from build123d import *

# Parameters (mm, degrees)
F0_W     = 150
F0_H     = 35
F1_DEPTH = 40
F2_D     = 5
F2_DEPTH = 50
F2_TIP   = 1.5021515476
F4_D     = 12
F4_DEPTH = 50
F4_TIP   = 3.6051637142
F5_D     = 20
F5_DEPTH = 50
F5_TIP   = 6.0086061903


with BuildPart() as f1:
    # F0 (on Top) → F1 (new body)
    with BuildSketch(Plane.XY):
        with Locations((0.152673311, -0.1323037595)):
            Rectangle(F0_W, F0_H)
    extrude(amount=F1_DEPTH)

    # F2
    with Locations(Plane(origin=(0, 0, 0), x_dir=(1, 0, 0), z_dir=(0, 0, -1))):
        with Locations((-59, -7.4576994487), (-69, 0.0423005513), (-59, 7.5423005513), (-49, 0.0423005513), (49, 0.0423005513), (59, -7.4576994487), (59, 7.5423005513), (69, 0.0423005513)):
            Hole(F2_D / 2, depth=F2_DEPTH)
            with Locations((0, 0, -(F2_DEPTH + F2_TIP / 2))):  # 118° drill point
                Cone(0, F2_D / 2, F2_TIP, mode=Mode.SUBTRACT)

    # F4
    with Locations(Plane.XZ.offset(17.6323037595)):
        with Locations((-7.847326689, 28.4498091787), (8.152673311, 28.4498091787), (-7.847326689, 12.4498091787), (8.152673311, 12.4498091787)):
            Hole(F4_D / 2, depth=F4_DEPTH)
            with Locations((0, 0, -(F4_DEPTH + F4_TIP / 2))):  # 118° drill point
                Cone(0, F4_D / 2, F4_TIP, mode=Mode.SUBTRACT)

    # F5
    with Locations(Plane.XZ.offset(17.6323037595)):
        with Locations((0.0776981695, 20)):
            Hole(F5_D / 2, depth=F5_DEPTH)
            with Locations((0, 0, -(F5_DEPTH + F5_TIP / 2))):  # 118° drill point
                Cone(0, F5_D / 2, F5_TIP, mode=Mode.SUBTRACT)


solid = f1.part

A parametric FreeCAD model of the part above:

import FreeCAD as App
import Part
import Sketcher


def add_polygon(sketch, points):
    """Adds a closed chain of lines whose ends are joined by coincident constraints."""
    first, n = sketch.GeometryCount, len(points)
    for a, b in zip(points, points[1:] + points[:1]):
        sketch.addGeometry(Part.LineSegment(App.Vector(*a, 0), App.Vector(*b, 0)), False)
    for i in range(n):
        sketch.addConstraint(Sketcher.Constraint("Coincident", first + i, 2, first + (i + 1) % n, 1))

doc = App.newDocument("Part")
body = doc.addObject("PartDesign::Body", "Body")

# Sketch on XY plane
sketch1 = doc.addObject("Sketcher::SketchObject", "Sketch")
body.addObject(sketch1)
sketch1.AttachmentSupport = (doc.XY_Plane, [""])
sketch1.MapMode = "FlatFace"
add_polygon(sketch1, [(-74.847327, 17.367696), (-74.847327, -17.632304), (75.152673, -17.632304), (75.152673, 17.367696)])  # lines 0-3
sketch1.addConstraint(Sketcher.Constraint("Vertical", 0))
sketch1.addConstraint(Sketcher.Constraint("Horizontal", 1))
sketch1.addConstraint(Sketcher.Constraint("Vertical", 2))
sketch1.addConstraint(Sketcher.Constraint("Horizontal", 3))
sketch1.addConstraint(Sketcher.Constraint("DistanceX", 1, 1, 1, 2, 150.0))
sketch1.addConstraint(Sketcher.Constraint("DistanceY", 0, 2, 0, 1, 35.0))
sketch1.addConstraint(Sketcher.Constraint("DistanceX", 0, 2, -1, 1, 74.847327))
sketch1.addConstraint(Sketcher.Constraint("DistanceY", 0, 2, -1, 1, 17.632304))
pad1 = doc.addObject("PartDesign::Pad", "Pad")
body.addObject(pad1)
pad1.Profile = sketch1
pad1.Length = 40

# Sketch on XY plane
sketch2 = doc.addObject("Sketcher::SketchObject", "Sketch001")
body.addObject(sketch2)
sketch2.AttachmentSupport = (doc.XY_Plane, [""])
sketch2.MapMode = "FlatFace"
sketch2.addGeometry(Part.Circle(App.Vector(-59, 7.457699, 0), App.Vector(0, 0, 1), 2.5), False)
sketch2.addGeometry(Part.Circle(App.Vector(-69, -0.042301, 0), App.Vector(0, 0, 1), 2.5), False)
sketch2.addGeometry(Part.Circle(App.Vector(-59, -7.542301, 0), App.Vector(0, 0, 1), 2.5), False)
sketch2.addGeometry(Part.Circle(App.Vector(-49, -0.042301, 0), App.Vector(0, 0, 1), 2.5), False)
sketch2.addGeometry(Part.Circle(App.Vector(49, -0.042301, 0), App.Vector(0, 0, 1), 2.5), False)
sketch2.addGeometry(Part.Circle(App.Vector(59, 7.457699, 0), App.Vector(0, 0, 1), 2.5), False)
sketch2.addGeometry(Part.Circle(App.Vector(59, -7.542301, 0), App.Vector(0, 0, 1), 2.5), False)
sketch2.addGeometry(Part.Circle(App.Vector(69, -0.042301, 0), App.Vector(0, 0, 1), 2.5), False)
sketch2.addConstraint(Sketcher.Constraint("Equal", 0, 1))
sketch2.addConstraint(Sketcher.Constraint("Equal", 1, 2))
sketch2.addConstraint(Sketcher.Constraint("Equal", 2, 3))
sketch2.addConstraint(Sketcher.Constraint("Equal", 3, 4))
sketch2.addConstraint(Sketcher.Constraint("Equal", 4, 5))
sketch2.addConstraint(Sketcher.Constraint("Equal", 5, 6))
sketch2.addConstraint(Sketcher.Constraint("Equal", 6, 7))
sketch2.addConstraint(Sketcher.Constraint("Symmetric", 3, 3, 4, 3, -2))
sketch2.addConstraint(Sketcher.Constraint("Symmetric", 0, 3, 5, 3, -2))
sketch2.addConstraint(Sketcher.Constraint("Symmetric", 2, 3, 6, 3, -2))
sketch2.addConstraint(Sketcher.Constraint("Symmetric", 1, 3, 7, 3, -2))
sketch2.addConstraint(Sketcher.Constraint("Horizontal", 1, 3, 3, 3))
sketch2.addConstraint(Sketcher.Constraint("Vertical", 0, 3, 2, 3))
sketch2.addConstraint(Sketcher.Constraint("Diameter", 0, 5.0))
sketch2.addConstraint(Sketcher.Constraint("DistanceX", 0, 3, -1, 1, 59.0))
sketch2.addConstraint(Sketcher.Constraint("DistanceX", 1, 3, -1, 1, 69.0))
sketch2.addConstraint(Sketcher.Constraint("DistanceX", 3, 3, -1, 1, 49.0))
sketch2.addConstraint(Sketcher.Constraint("DistanceY", 2, 3, 0, 3, 15.0))
sketch2.addConstraint(Sketcher.Constraint("DistanceY", 1, 3, 0, 3, 7.5))
sketch2.addConstraint(Sketcher.Constraint("DistanceY", -1, 1, 0, 3, 7.457699))
doc.recompute()
hole = doc.addObject("PartDesign::Hole", "Hole")
body.addObject(hole)
hole.Profile = sketch2
hole.ThreadType = "None"
hole.Diameter = 5
hole.DepthType = "Dimension"
hole.Depth = 50
hole.DrillPoint = "Angled"
hole.DrillPointAngle = 118
hole.Reversed = True

# Sketch on XZ plane
sketch3 = doc.addObject("Sketcher::SketchObject", "Sketch002")
body.addObject(sketch3)
sketch3.AttachmentSupport = (doc.XZ_Plane, [""])
sketch3.MapMode = "FlatFace"
sketch3.AttachmentOffset = App.Placement(App.Vector(0, 0, 17.632304), App.Rotation())
sketch3.addGeometry(Part.Circle(App.Vector(-7.847327, 28.449809, 0), App.Vector(0, 0, 1), 6), False)
sketch3.addGeometry(Part.Circle(App.Vector(8.152673, 28.449809, 0), App.Vector(0, 0, 1), 6), False)
sketch3.addGeometry(Part.Circle(App.Vector(-7.847327, 12.449809, 0), App.Vector(0, 0, 1), 6), False)
sketch3.addGeometry(Part.Circle(App.Vector(8.152673, 12.449809, 0), App.Vector(0, 0, 1), 6), False)
sketch3.addConstraint(Sketcher.Constraint("Equal", 0, 1))
sketch3.addConstraint(Sketcher.Constraint("Equal", 1, 2))
sketch3.addConstraint(Sketcher.Constraint("Equal", 2, 3))
sketch3.addConstraint(Sketcher.Constraint("Horizontal", 0, 3, 1, 3))
sketch3.addConstraint(Sketcher.Constraint("Horizontal", 2, 3, 3, 3))
sketch3.addConstraint(Sketcher.Constraint("Vertical", 0, 3, 2, 3))
sketch3.addConstraint(Sketcher.Constraint("Vertical", 1, 3, 3, 3))
sketch3.addConstraint(Sketcher.Constraint("Diameter", 0, 12.0))
sketch3.addConstraint(Sketcher.Constraint("DistanceX", 0, 3, 1, 3, 16.0))
sketch3.addConstraint(Sketcher.Constraint("DistanceY", 2, 3, 0, 3, 16.0))
sketch3.addConstraint(Sketcher.Constraint("DistanceY", -1, 1, 0, 3, 28.449809))
sketch3.addConstraint(Sketcher.Constraint("DistanceX", 0, 3, -1, 1, 7.847327))
doc.recompute()
hole2 = doc.addObject("PartDesign::Hole", "Hole001")
body.addObject(hole2)
hole2.Profile = sketch3
hole2.ThreadType = "None"
hole2.Diameter = 12
hole2.DepthType = "Dimension"
hole2.Depth = 50
hole2.DrillPoint = "Angled"
hole2.DrillPointAngle = 118

# Sketch on XZ plane
sketch4 = doc.addObject("Sketcher::SketchObject", "Sketch003")
body.addObject(sketch4)
sketch4.AttachmentSupport = (doc.XZ_Plane, [""])
sketch4.MapMode = "FlatFace"
sketch4.AttachmentOffset = App.Placement(App.Vector(0, 0, 17.632304), App.Rotation())
sketch4.addGeometry(Part.Circle(App.Vector(0.077698, 20, 0), App.Vector(0, 0, 1), 10), False)
sketch4.addConstraint(Sketcher.Constraint("Diameter", 0, 20.0))
sketch4.addConstraint(Sketcher.Constraint("DistanceY", -1, 1, 0, 3, 20.0))
sketch4.addConstraint(Sketcher.Constraint("DistanceX", -1, 1, 0, 3, 0.077698))
doc.recompute()
hole3 = doc.addObject("PartDesign::Hole", "Hole002")
body.addObject(hole3)
hole3.Profile = sketch4
hole3.ThreadType = "None"
hole3.Diameter = 20
hole3.DepthType = "Dimension"
hole3.Depth = 50
hole3.DrillPoint = "Angled"
hole3.DrillPointAngle = 118

doc.recompute()
